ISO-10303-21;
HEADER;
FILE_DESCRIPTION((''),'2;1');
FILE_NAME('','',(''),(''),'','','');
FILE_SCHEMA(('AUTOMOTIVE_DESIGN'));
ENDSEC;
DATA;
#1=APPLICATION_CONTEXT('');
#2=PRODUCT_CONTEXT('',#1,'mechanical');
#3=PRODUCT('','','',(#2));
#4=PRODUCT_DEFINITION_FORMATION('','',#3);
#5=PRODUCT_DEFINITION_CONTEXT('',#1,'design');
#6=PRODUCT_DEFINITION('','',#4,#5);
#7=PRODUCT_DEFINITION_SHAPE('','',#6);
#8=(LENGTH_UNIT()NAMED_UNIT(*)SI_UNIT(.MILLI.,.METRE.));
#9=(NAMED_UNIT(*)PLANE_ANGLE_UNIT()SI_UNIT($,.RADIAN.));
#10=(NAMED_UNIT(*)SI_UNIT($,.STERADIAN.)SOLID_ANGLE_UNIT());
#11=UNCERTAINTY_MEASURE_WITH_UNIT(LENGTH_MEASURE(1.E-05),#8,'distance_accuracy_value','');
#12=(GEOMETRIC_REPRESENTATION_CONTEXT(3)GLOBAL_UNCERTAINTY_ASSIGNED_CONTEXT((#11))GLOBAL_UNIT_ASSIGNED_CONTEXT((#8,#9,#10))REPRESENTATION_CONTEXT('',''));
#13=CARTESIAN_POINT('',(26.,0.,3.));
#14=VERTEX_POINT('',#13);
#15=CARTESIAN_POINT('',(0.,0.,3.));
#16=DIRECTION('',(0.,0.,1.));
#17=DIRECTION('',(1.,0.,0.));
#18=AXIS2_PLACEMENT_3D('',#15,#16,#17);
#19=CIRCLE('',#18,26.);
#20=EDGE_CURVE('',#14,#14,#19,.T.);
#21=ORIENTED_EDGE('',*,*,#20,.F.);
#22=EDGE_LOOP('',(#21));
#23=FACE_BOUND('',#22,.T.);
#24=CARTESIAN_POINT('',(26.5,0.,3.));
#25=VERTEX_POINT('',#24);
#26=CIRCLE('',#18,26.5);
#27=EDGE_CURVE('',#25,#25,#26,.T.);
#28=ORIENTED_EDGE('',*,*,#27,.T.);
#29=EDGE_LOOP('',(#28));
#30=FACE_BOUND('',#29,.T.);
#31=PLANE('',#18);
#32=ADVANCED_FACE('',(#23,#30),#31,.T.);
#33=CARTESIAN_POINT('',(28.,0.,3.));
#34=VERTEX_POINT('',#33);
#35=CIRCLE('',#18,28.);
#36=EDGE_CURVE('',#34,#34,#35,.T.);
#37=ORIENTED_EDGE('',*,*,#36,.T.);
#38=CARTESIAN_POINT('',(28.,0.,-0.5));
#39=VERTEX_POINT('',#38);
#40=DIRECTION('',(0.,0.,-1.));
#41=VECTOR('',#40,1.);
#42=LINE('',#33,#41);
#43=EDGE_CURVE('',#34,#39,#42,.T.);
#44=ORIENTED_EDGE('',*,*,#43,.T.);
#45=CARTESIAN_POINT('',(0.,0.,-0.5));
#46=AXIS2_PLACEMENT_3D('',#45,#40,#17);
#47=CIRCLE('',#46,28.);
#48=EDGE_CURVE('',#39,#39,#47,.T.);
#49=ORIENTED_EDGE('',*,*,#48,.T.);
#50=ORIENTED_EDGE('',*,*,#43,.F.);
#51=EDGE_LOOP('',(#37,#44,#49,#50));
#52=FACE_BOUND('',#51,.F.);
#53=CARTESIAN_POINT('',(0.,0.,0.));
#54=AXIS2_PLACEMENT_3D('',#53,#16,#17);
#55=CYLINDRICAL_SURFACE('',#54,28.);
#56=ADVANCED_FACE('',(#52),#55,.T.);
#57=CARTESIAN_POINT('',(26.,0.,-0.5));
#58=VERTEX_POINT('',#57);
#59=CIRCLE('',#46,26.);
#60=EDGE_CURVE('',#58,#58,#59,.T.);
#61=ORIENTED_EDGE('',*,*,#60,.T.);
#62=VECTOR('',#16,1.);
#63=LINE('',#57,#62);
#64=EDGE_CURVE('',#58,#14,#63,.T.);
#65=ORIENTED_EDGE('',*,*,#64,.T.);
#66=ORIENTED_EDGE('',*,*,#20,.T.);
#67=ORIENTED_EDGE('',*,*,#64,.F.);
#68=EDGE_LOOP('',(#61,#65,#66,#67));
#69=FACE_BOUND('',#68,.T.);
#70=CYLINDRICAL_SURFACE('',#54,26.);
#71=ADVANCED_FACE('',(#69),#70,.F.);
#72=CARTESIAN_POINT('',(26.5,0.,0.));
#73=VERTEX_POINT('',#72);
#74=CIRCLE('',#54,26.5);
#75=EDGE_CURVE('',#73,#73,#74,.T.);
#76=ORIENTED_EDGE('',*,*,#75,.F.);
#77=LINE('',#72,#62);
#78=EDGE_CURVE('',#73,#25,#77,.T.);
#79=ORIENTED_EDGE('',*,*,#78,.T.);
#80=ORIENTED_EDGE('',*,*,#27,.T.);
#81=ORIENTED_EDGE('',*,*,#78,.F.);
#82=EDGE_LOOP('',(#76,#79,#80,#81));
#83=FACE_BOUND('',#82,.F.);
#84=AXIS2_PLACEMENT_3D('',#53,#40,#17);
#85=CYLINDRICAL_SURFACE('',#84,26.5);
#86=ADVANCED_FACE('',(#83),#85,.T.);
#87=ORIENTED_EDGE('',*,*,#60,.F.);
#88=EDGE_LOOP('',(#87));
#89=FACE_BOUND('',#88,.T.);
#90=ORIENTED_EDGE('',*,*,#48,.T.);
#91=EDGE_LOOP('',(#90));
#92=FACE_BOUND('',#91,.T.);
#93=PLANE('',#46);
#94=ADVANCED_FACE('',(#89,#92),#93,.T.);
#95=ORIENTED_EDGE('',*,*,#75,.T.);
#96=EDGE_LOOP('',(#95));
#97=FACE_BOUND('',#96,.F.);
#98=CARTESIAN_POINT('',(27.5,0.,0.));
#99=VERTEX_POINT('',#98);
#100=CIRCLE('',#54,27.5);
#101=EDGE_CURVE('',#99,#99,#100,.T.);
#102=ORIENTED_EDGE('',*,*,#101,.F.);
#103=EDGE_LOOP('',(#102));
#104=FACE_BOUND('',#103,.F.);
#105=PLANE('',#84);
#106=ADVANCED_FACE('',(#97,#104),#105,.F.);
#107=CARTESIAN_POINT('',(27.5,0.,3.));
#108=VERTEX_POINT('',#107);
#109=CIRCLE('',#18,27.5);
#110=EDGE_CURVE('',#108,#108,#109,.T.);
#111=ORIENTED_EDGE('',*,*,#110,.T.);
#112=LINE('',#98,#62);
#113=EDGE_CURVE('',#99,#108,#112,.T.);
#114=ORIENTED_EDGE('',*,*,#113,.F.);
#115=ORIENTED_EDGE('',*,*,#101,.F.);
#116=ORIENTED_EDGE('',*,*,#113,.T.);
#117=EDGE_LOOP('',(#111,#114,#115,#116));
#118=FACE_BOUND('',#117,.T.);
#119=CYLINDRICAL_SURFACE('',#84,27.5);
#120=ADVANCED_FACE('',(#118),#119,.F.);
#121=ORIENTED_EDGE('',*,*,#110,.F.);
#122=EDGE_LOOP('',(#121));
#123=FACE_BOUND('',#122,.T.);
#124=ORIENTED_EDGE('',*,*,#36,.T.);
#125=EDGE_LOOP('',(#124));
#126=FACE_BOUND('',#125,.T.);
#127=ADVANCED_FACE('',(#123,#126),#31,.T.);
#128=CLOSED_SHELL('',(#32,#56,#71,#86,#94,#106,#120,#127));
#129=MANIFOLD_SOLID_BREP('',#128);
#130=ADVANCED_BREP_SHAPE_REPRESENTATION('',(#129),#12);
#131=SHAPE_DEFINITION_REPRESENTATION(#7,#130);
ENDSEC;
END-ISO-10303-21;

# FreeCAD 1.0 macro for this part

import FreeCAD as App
import Part
import Sketcher
Q = App.Units.Quantity

doc = App.newDocument("Part")
body = doc.addObject("PartDesign::Body", "Body")
body.AllowCompound = True

sketch1 = body.newObject("Sketcher::SketchObject", "Sketch")
sketch1.AttachmentSupport = (doc.getObject("XY_Plane"), [""])
sketch1.MapMode = "FlatFace"
sketch1.addGeometry(Part.Circle(App.Vector(0, 0, 0), App.Vector(0, 0, 1), 28), False)
sketch1.addGeometry(Part.Circle(App.Vector(0, 0, 0), App.Vector(0, 0, 1), 28), False)
sketch1.addGeometry(Part.Circle(App.Vector(0, 0, 0), App.Vector(0, 0, 1), 26), False)
sketch1.addGeometry(Part.Circle(App.Vector(0, 0, 0), App.Vector(0, 0, 1), 26), False)
sketch1.addConstraint(Sketcher.Constraint("Coincident", 0, 3, -1, 1))
sketch1.addConstraint(Sketcher.Constraint("Coincident", 1, 3, -1, 1))
sketch1.addConstraint(Sketcher.Constraint("Coincident", 2, 3, -1, 1))
sketch1.addConstraint(Sketcher.Constraint("Coincident", 3, 3, -1, 1))
sketch1.addConstraint(Sketcher.Constraint("Diameter", 0, Q("56 mm")))
sketch1.addConstraint(Sketcher.Constraint("Diameter", 1, Q("55 mm")))
sketch1.addConstraint(Sketcher.Constraint("Diameter", 2, Q("53 mm")))
sketch1.addConstraint(Sketcher.Constraint("Diameter", 3, Q("52 mm")))
pad1 = body.newObject("PartDesign::Pad", "Pad")
pad1.Profile = sketch1
pad1.Length = 3

sketch2 = body.newObject("Sketcher::SketchObject", "Sketch001")
sketch2.AttachmentSupport = (doc.getObject("XY_Plane"), [""])
sketch2.MapMode = "FlatFace"
sketch2.addGeometry(Part.Circle(App.Vector(0, 0, 0), App.Vector(0, 0, 1), 28), False)
sketch2.addGeometry(Part.Circle(App.Vector(0, 0, 0), App.Vector(0, 0, 1), 26), False)
sketch2.addConstraint(Sketcher.Constraint("Coincident", 0, 3, -1, 1))
sketch2.addConstraint(Sketcher.Constraint("Coincident", 1, 3, -1, 1))
sketch2.addConstraint(Sketcher.Constraint("Diameter", 0, Q("56 mm")))
sketch2.addConstraint(Sketcher.Constraint("Diameter", 1, Q("52 mm")))
pad2 = body.newObject("PartDesign::Pad", "Pad001")
pad2.Profile = sketch2
pad2.Length = 0.5
pad2.Reversed = True

doc.recompute()
